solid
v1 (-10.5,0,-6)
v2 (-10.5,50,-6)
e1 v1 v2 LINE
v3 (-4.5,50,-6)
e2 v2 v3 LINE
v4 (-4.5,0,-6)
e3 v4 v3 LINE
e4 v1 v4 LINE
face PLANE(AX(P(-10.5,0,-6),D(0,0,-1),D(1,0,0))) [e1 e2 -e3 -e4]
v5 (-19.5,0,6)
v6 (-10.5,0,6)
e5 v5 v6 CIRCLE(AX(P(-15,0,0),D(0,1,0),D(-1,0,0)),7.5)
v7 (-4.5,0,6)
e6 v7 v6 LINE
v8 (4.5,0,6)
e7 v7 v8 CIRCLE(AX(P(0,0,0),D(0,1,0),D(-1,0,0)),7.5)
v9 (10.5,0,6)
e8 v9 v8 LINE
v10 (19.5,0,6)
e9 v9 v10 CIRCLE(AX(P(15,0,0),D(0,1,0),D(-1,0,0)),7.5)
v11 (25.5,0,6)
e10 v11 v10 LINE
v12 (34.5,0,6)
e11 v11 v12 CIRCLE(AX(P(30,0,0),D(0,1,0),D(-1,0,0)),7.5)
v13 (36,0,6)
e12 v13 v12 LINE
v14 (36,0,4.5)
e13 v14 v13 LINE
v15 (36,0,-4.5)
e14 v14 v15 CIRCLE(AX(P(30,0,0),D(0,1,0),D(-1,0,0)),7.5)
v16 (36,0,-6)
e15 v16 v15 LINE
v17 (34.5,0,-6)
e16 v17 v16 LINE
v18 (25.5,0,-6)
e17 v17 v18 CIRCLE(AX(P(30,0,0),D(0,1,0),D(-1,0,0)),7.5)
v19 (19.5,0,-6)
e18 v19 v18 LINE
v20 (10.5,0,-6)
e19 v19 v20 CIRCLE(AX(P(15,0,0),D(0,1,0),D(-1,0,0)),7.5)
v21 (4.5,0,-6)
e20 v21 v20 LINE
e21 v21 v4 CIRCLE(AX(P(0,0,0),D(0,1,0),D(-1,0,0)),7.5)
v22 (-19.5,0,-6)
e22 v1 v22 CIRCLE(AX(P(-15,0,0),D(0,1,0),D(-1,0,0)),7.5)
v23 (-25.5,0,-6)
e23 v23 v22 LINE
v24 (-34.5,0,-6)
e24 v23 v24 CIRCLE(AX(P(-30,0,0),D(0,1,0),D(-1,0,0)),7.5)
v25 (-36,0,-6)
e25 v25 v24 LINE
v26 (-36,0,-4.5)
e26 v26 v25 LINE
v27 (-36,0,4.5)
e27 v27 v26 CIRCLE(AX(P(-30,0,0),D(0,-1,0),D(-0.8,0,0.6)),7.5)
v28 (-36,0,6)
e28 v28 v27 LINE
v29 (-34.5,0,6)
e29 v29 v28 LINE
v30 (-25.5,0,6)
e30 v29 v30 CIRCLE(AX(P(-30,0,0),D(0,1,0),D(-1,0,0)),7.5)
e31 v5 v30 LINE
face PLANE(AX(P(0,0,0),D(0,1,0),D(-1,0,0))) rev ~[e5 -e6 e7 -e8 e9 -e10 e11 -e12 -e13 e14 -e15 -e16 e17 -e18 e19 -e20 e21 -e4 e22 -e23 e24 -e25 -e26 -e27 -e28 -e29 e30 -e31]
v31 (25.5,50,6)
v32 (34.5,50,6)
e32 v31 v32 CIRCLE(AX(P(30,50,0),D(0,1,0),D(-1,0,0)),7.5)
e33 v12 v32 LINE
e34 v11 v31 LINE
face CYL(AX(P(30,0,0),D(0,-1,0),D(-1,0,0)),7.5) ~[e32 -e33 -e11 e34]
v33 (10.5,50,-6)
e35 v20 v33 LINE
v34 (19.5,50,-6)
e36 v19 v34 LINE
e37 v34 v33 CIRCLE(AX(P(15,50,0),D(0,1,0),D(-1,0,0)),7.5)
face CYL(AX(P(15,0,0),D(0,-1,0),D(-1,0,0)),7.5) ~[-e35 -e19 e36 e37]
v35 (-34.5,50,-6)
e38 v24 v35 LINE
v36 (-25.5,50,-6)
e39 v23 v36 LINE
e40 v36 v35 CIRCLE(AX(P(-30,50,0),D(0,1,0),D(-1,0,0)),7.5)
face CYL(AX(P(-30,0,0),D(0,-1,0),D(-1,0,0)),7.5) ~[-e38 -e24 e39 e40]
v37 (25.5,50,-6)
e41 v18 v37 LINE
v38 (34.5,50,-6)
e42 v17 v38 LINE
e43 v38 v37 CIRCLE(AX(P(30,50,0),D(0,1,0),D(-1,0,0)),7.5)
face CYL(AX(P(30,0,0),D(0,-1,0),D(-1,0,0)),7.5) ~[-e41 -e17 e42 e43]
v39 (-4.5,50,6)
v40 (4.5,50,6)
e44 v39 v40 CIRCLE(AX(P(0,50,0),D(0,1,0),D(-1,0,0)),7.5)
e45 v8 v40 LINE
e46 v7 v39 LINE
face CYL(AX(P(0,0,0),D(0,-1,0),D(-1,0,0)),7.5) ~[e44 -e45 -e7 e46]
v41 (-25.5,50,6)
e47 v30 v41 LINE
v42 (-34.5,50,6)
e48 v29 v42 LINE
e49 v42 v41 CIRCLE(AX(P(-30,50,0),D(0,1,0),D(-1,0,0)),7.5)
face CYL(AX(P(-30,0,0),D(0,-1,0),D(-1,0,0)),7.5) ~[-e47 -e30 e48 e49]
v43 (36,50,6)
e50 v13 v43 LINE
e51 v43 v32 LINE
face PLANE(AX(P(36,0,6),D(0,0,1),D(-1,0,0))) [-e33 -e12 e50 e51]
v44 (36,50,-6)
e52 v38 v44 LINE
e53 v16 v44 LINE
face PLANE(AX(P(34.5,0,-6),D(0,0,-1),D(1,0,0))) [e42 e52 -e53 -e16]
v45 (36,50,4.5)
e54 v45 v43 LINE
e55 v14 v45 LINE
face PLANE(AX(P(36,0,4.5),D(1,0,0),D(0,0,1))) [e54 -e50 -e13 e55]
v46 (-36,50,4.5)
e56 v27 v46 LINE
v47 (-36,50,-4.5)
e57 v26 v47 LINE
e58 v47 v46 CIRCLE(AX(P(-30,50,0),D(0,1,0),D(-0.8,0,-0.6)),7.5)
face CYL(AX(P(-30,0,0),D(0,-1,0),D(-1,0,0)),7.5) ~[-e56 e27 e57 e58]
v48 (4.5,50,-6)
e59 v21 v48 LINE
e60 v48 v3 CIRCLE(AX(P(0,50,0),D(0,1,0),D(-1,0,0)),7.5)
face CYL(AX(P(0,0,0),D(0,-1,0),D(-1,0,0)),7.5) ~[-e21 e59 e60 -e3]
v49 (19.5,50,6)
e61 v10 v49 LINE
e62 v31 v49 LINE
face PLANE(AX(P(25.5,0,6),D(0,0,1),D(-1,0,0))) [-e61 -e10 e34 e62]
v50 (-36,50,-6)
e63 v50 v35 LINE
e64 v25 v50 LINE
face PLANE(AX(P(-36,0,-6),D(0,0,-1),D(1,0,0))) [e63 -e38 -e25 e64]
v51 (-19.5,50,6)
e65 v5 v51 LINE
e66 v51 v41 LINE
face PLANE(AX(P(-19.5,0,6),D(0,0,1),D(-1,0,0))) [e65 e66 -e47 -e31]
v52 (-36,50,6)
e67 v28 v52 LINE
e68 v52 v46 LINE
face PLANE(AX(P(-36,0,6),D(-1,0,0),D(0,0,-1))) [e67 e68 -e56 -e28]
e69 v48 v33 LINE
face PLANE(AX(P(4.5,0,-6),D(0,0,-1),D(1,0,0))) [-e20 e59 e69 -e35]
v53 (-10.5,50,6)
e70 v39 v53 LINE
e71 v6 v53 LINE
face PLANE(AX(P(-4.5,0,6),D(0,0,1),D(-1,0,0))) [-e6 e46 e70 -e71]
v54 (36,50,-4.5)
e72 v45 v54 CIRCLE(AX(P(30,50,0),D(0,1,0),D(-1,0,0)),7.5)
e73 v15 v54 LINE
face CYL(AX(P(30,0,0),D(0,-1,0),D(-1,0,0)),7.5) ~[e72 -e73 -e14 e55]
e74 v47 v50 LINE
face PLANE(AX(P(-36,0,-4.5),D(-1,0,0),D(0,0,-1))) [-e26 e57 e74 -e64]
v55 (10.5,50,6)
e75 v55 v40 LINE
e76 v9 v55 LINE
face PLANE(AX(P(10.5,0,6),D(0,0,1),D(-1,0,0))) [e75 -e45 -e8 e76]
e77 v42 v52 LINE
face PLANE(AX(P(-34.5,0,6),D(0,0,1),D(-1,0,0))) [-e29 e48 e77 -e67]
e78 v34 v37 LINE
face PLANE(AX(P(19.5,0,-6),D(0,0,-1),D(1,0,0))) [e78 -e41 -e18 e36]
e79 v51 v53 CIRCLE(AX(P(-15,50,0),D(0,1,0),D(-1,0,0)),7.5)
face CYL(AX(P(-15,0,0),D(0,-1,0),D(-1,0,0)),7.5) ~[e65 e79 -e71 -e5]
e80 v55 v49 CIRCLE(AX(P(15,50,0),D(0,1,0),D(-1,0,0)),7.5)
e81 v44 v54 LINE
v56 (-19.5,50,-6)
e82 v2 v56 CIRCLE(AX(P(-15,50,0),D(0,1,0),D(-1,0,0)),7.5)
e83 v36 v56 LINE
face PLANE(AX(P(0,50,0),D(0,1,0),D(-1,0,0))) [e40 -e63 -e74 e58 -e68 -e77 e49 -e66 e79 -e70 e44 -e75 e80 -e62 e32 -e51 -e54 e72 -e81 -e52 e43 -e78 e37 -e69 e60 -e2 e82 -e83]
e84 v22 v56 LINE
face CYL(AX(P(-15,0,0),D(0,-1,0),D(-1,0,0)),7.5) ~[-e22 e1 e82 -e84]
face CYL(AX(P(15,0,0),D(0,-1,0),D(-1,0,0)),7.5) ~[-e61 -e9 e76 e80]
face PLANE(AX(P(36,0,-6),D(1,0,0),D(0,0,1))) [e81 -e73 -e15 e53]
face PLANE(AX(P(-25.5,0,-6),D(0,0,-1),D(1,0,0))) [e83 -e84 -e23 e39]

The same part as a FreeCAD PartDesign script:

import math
import FreeCAD as App
import Part
import Sketcher
Q = App.Units.Quantity

doc = App.newDocument("Part")
body = doc.addObject("PartDesign::Body", "Body")

# Sketch on XZ plane
sketch1 = doc.addObject("Sketcher::SketchObject", "Sketch")
body.addObject(sketch1)
sketch1.AttachmentSupport = (doc.XZ_Plane, [""])
sketch1.MapMode = "FlatFace"
sketch1.addGeometry(Part.LineSegment(App.Vector(25.5, -6, 0), App.Vector(19.5, -6, 0)), False)
sketch1.addGeometry(Part.ArcOfCircle(Part.Circle(App.Vector(15, 0, 0), App.Vector(0, 0, 1), 7.5), math.radians(-127), math.radians(-53)), False)
sketch1.addGeometry(Part.LineSegment(App.Vector(10.5, -6, 0), App.Vector(4.5, -6, 0)), False)
sketch1.addGeometry(Part.ArcOfCircle(Part.Circle(App.Vector(0, 0, 0), App.Vector(0, 0, 1), 7.5), math.radians(-127), math.radians(-53)), False)
sketch1.addGeometry(Part.LineSegment(App.Vector(-4.5, -6, 0), App.Vector(-10.5, -6, 0)), False)
sketch1.addGeometry(Part.ArcOfCircle(Part.Circle(App.Vector(-15, 0, 0), App.Vector(0, 0, 1), 7.5), math.radians(-127), math.radians(-53)), False)
sketch1.addGeometry(Part.LineSegment(App.Vector(-19.5, -6, 0), App.Vector(-25.5, -6, 0)), False)
sketch1.addGeometry(Part.ArcOfCircle(Part.Circle(App.Vector(-30, 0, 0), App.Vector(0, 0, 1), 7.5), math.radians(-127), math.radians(-53)), False)
sketch1.addGeometry(Part.LineSegment(App.Vector(-34.5, -6, 0), App.Vector(-36, -6, 0)), False)
sketch1.addGeometry(Part.LineSegment(App.Vector(-36, -6, 0), App.Vector(-36, -4.5, 0)), False)
sketch1.addGeometry(Part.ArcOfCircle(Part.Circle(App.Vector(-30, 0, 0), App.Vector(0, 0, 1), 7.5), math.radians(143), math.radians(217)), False)
sketch1.addGeometry(Part.LineSegment(App.Vector(-36, 4.5, 0), App.Vector(-36, 6, 0)), False)
sketch1.addGeometry(Part.LineSegment(App.Vector(-36, 6, 0), App.Vector(-34.5, 6, 0)), False)
sketch1.addGeometry(Part.ArcOfCircle(Part.Circle(App.Vector(-30, 0, 0), App.Vector(0, 0, 1), 7.5), math.radians(53), math.radians(127)), False)
sketch1.addGeometry(Part.LineSegment(App.Vector(-25.5, 6, 0), App.Vector(-19.5, 6, 0)), False)
sketch1.addGeometry(Part.ArcOfCircle(Part.Circle(App.Vector(-15, 0, 0), App.Vector(0, 0, 1), 7.5), math.radians(53), math.radians(127)), False)
sketch1.addGeometry(Part.LineSegment(App.Vector(-10.5, 6, 0), App.Vector(-4.5, 6, 0)), False)
sketch1.addGeometry(Part.ArcOfCircle(Part.Circle(App.Vector(0, 0, 0), App.Vector(0, 0, 1), 7.5), math.radians(53), math.radians(127)), False)
sketch1.addGeometry(Part.LineSegment(App.Vector(4.5, 6, 0), App.Vector(10.5, 6, 0)), False)
sketch1.addGeometry(Part.ArcOfCircle(Part.Circle(App.Vector(15, 0, 0), App.Vector(0, 0, 1), 7.5), math.radians(53), math.radians(127)), False)
sketch1.addGeometry(Part.LineSegment(App.Vector(19.5, 6, 0), App.Vector(25.5, 6, 0)), False)
sketch1.addGeometry(Part.ArcOfCircle(Part.Circle(App.Vector(30, 0, 0), App.Vector(0, 0, 1), 7.5), math.radians(53), math.radians(127)), False)
sketch1.addGeometry(Part.LineSegment(App.Vector(34.5, 6, 0), App.Vector(36, 6, 0)), False)
sketch1.addGeometry(Part.LineSegment(App.Vector(36, 6, 0), App.Vector(36, 4.5, 0)), False)
sketch1.addGeometry(Part.ArcOfCircle(Part.Circle(App.Vector(30, 0, 0), App.Vector(0, 0, 1), 7.5), math.radians(-37), math.radians(37)), False)
sketch1.addGeometry(Part.LineSegment(App.Vector(36, -4.5, 0), App.Vector(36, -6, 0)), False)
sketch1.addGeometry(Part.LineSegment(App.Vector(36, -6, 0), App.Vector(34.5, -6, 0)), False)
sketch1.addGeometry(Part.ArcOfCircle(Part.Circle(App.Vector(30, 0, 0), App.Vector(0, 0, 1), 7.5), math.radians(-127), math.radians(-53)), False)
sketch1.addConstraint(Sketcher.Constraint("Coincident", 0, 2, 1, 2))
sketch1.addConstraint(Sketcher.Constraint("Coincident", 1, 1, 2, 1))
sketch1.addConstraint(Sketcher.Constraint("Coincident", 2, 2, 3, 2))
sketch1.addConstraint(Sketcher.Constraint("Coincident", 3, 1, 4, 1))
sketch1.addConstraint(Sketcher.Constraint("Coincident", 4, 2, 5, 2))
sketch1.addConstraint(Sketcher.Constraint("Coincident", 5, 1, 6, 1))
sketch1.addConstraint(Sketcher.Constraint("Coincident", 6, 2, 7, 2))
sketch1.addConstraint(Sketcher.Constraint("Coincident", 7, 1, 8, 1))
sketch1.addConstraint(Sketcher.Constraint("Coincident", 8, 2, 9, 1))
sketch1.addConstraint(Sketcher.Constraint("Coincident", 9, 2, 10, 2))
sketch1.addConstraint(Sketcher.Constraint("Coincident", 10, 1, 11, 1))
sketch1.addConstraint(Sketcher.Constraint("Coincident", 11, 2, 12, 1))
sketch1.addConstraint(Sketcher.Constraint("Coincident", 12, 2, 13, 2))
sketch1.addConstraint(Sketcher.Constraint("Coincident", 13, 1, 14, 1))
sketch1.addConstraint(Sketcher.Constraint("Coincident", 14, 2, 15, 2))
sketch1.addConstraint(Sketcher.Constraint("Coincident", 15, 1, 16, 1))
sketch1.addConstraint(Sketcher.Constraint("Coincident", 16, 2, 17, 2))
sketch1.addConstraint(Sketcher.Constraint("Coincident", 17, 1, 18, 1))
sketch1.addConstraint(Sketcher.Constraint("Coincident", 18, 2, 19, 2))
sketch1.addConstraint(Sketcher.Constraint("Coincident", 19, 1, 20, 1))
sketch1.addConstraint(Sketcher.Constraint("Coincident", 20, 2, 21, 2))
sketch1.addConstraint(Sketcher.Constraint("Coincident", 21, 1, 22, 1))
sketch1.addConstraint(Sketcher.Constraint("Coincident", 22, 2, 23, 1))
sketch1.addConstraint(Sketcher.Constraint("Coincident", 23, 2, 24, 2))
sketch1.addConstraint(Sketcher.Constraint("Coincident", 24, 1, 25, 1))
sketch1.addConstraint(Sketcher.Constraint("Coincident", 25, 2, 26, 1))
sketch1.addConstraint(Sketcher.Constraint("Coincident", 26, 2, 27, 2))
sketch1.addConstraint(Sketcher.Constraint("Coincident", 27, 1, 0, 1))
sketch1.addConstraint(Sketcher.Constraint("Horizontal", 0))
sketch1.addConstraint(Sketcher.Constraint("Horizontal", 2))
sketch1.addConstraint(Sketcher.Constraint("Horizontal", 4))
sketch1.addConstraint(Sketcher.Constraint("Horizontal", 6))
sketch1.addConstraint(Sketcher.Constraint("Horizontal", 8))
sketch1.addConstraint(Sketcher.Constraint("Vertical", 9))
sketch1.addConstraint(Sketcher.Constraint("Vertical", 11))
sketch1.addConstraint(Sketcher.Constraint("Horizontal", 12))
sketch1.addConstraint(Sketcher.Constraint("Horizontal", 14))
sketch1.addConstraint(Sketcher.Constraint("Horizontal", 16))
sketch1.addConstraint(Sketcher.Constraint("Horizontal", 18))
sketch1.addConstraint(Sketcher.Constraint("Horizontal", 20))
sketch1.addConstraint(Sketcher.Constraint("Horizontal", 22))
sketch1.addConstraint(Sketcher.Constraint("Vertical", 23))
sketch1.addConstraint(Sketcher.Constraint("Vertical", 25))
sketch1.addConstraint(Sketcher.Constraint("Horizontal", 26))
sketch1.addConstraint(Sketcher.Constraint("Coincident", 3, 3, -1, 1))
sketch1.addConstraint(Sketcher.Constraint("Coincident", 17, 3, -1, 1))
sketch1.addConstraint(Sketcher.Constraint("Coincident", 10, 3, 7, 3))
sketch1.addConstraint(Sketcher.Constraint("Coincident", 13, 3, 7, 3))
sketch1.addConstraint(Sketcher.Constraint("Coincident", 15, 3, 5, 3))
sketch1.addConstraint(Sketcher.Constraint("Coincident", 19, 3, 1, 3))
sketch1.addConstraint(Sketcher.Constraint("Coincident", 24, 3, 21, 3))
sketch1.addConstraint(Sketcher.Constraint("Coincident", 27, 3, 21, 3))
sketch1.addConstraint(Sketcher.Constraint("Equal", 1, 3))
sketch1.addConstraint(Sketcher.Constraint("Equal", 3, 5))
sketch1.addConstraint(Sketcher.Constraint("Equal", 5, 7))
sketch1.addConstraint(Sketcher.Constraint("Equal", 7, 10))
sketch1.addConstraint(Sketcher.Constraint("Equal", 10, 13))
sketch1.addConstraint(Sketcher.Constraint("Equal", 13, 15))
sketch1.addConstraint(Sketcher.Constraint("Equal", 15, 17))
sketch1.addConstraint(Sketcher.Constraint("Equal", 17, 19))
sketch1.addConstraint(Sketcher.Constraint("Equal", 19, 21))
sketch1.addConstraint(Sketcher.Constraint("Equal", 21, 24))
sketch1.addConstraint(Sketcher.Constraint("Equal", 24, 27))
sketch1.addConstraint(Sketcher.Constraint("Symmetric", 1, 3, 5, 3, -1, 1))
sketch1.addConstraint(Sketcher.Constraint("Symmetric", 7, 3, 21, 3, -1, 1))
sketch1.addConstraint(Sketcher.Constraint("Symmetric", 8, 2, 22, 2, -1, 1))
sketch1.addConstraint(Sketcher.Constraint("Symmetric", 11, 2, 25, 2, -1, 1))
sketch1.addConstraint(Sketcher.Constraint("Symmetric", 1, 1, 4, 2, -2))
sketch1.addConstraint(Sketcher.Constraint("Symmetric", 13, 1, 20, 2, -2))
sketch1.addConstraint(Sketcher.Constraint("Symmetric", 11, 2, 22, 2, -2))
sketch1.addConstraint(Sketcher.Constraint("Horizontal", 0, 2, 1, 1))
sketch1.addConstraint(Sketcher.Constraint("Horizontal", 4, 2, 5, 1))
sketch1.addConstraint(Sketcher.Constraint("Horizontal", 6, 2, 7, 1))
sketch1.addConstraint(Sketcher.Constraint("Horizontal", 12, 2, 13, 1))
sketch1.addConstraint(Sketcher.Constraint("Horizontal", 14, 2, 15, 1))
sketch1.addConstraint(Sketcher.Constraint("Horizontal", 16, 2, 17, 1))
sketch1.addConstraint(Sketcher.Constraint("Equal", 0, 2))
sketch1.addConstraint(Sketcher.Constraint("Equal", 26, 9))
sketch1.addConstraint(Sketcher.Constraint("Radius", 1, Q("7.5 mm")))
sketch1.addConstraint(Sketcher.Constraint("DistanceX", 0, 2, 0, 1, Q("6 mm")))
sketch1.addConstraint(Sketcher.Constraint("DistanceX", -1, 1, 1, 3, Q("15 mm")))
pad1 = doc.addObject("PartDesign::Pad", "Pad")
body.addObject(pad1)
pad1.Profile = sketch1
pad1.Length = 50
pad1.Reversed = True

doc.recompute()
